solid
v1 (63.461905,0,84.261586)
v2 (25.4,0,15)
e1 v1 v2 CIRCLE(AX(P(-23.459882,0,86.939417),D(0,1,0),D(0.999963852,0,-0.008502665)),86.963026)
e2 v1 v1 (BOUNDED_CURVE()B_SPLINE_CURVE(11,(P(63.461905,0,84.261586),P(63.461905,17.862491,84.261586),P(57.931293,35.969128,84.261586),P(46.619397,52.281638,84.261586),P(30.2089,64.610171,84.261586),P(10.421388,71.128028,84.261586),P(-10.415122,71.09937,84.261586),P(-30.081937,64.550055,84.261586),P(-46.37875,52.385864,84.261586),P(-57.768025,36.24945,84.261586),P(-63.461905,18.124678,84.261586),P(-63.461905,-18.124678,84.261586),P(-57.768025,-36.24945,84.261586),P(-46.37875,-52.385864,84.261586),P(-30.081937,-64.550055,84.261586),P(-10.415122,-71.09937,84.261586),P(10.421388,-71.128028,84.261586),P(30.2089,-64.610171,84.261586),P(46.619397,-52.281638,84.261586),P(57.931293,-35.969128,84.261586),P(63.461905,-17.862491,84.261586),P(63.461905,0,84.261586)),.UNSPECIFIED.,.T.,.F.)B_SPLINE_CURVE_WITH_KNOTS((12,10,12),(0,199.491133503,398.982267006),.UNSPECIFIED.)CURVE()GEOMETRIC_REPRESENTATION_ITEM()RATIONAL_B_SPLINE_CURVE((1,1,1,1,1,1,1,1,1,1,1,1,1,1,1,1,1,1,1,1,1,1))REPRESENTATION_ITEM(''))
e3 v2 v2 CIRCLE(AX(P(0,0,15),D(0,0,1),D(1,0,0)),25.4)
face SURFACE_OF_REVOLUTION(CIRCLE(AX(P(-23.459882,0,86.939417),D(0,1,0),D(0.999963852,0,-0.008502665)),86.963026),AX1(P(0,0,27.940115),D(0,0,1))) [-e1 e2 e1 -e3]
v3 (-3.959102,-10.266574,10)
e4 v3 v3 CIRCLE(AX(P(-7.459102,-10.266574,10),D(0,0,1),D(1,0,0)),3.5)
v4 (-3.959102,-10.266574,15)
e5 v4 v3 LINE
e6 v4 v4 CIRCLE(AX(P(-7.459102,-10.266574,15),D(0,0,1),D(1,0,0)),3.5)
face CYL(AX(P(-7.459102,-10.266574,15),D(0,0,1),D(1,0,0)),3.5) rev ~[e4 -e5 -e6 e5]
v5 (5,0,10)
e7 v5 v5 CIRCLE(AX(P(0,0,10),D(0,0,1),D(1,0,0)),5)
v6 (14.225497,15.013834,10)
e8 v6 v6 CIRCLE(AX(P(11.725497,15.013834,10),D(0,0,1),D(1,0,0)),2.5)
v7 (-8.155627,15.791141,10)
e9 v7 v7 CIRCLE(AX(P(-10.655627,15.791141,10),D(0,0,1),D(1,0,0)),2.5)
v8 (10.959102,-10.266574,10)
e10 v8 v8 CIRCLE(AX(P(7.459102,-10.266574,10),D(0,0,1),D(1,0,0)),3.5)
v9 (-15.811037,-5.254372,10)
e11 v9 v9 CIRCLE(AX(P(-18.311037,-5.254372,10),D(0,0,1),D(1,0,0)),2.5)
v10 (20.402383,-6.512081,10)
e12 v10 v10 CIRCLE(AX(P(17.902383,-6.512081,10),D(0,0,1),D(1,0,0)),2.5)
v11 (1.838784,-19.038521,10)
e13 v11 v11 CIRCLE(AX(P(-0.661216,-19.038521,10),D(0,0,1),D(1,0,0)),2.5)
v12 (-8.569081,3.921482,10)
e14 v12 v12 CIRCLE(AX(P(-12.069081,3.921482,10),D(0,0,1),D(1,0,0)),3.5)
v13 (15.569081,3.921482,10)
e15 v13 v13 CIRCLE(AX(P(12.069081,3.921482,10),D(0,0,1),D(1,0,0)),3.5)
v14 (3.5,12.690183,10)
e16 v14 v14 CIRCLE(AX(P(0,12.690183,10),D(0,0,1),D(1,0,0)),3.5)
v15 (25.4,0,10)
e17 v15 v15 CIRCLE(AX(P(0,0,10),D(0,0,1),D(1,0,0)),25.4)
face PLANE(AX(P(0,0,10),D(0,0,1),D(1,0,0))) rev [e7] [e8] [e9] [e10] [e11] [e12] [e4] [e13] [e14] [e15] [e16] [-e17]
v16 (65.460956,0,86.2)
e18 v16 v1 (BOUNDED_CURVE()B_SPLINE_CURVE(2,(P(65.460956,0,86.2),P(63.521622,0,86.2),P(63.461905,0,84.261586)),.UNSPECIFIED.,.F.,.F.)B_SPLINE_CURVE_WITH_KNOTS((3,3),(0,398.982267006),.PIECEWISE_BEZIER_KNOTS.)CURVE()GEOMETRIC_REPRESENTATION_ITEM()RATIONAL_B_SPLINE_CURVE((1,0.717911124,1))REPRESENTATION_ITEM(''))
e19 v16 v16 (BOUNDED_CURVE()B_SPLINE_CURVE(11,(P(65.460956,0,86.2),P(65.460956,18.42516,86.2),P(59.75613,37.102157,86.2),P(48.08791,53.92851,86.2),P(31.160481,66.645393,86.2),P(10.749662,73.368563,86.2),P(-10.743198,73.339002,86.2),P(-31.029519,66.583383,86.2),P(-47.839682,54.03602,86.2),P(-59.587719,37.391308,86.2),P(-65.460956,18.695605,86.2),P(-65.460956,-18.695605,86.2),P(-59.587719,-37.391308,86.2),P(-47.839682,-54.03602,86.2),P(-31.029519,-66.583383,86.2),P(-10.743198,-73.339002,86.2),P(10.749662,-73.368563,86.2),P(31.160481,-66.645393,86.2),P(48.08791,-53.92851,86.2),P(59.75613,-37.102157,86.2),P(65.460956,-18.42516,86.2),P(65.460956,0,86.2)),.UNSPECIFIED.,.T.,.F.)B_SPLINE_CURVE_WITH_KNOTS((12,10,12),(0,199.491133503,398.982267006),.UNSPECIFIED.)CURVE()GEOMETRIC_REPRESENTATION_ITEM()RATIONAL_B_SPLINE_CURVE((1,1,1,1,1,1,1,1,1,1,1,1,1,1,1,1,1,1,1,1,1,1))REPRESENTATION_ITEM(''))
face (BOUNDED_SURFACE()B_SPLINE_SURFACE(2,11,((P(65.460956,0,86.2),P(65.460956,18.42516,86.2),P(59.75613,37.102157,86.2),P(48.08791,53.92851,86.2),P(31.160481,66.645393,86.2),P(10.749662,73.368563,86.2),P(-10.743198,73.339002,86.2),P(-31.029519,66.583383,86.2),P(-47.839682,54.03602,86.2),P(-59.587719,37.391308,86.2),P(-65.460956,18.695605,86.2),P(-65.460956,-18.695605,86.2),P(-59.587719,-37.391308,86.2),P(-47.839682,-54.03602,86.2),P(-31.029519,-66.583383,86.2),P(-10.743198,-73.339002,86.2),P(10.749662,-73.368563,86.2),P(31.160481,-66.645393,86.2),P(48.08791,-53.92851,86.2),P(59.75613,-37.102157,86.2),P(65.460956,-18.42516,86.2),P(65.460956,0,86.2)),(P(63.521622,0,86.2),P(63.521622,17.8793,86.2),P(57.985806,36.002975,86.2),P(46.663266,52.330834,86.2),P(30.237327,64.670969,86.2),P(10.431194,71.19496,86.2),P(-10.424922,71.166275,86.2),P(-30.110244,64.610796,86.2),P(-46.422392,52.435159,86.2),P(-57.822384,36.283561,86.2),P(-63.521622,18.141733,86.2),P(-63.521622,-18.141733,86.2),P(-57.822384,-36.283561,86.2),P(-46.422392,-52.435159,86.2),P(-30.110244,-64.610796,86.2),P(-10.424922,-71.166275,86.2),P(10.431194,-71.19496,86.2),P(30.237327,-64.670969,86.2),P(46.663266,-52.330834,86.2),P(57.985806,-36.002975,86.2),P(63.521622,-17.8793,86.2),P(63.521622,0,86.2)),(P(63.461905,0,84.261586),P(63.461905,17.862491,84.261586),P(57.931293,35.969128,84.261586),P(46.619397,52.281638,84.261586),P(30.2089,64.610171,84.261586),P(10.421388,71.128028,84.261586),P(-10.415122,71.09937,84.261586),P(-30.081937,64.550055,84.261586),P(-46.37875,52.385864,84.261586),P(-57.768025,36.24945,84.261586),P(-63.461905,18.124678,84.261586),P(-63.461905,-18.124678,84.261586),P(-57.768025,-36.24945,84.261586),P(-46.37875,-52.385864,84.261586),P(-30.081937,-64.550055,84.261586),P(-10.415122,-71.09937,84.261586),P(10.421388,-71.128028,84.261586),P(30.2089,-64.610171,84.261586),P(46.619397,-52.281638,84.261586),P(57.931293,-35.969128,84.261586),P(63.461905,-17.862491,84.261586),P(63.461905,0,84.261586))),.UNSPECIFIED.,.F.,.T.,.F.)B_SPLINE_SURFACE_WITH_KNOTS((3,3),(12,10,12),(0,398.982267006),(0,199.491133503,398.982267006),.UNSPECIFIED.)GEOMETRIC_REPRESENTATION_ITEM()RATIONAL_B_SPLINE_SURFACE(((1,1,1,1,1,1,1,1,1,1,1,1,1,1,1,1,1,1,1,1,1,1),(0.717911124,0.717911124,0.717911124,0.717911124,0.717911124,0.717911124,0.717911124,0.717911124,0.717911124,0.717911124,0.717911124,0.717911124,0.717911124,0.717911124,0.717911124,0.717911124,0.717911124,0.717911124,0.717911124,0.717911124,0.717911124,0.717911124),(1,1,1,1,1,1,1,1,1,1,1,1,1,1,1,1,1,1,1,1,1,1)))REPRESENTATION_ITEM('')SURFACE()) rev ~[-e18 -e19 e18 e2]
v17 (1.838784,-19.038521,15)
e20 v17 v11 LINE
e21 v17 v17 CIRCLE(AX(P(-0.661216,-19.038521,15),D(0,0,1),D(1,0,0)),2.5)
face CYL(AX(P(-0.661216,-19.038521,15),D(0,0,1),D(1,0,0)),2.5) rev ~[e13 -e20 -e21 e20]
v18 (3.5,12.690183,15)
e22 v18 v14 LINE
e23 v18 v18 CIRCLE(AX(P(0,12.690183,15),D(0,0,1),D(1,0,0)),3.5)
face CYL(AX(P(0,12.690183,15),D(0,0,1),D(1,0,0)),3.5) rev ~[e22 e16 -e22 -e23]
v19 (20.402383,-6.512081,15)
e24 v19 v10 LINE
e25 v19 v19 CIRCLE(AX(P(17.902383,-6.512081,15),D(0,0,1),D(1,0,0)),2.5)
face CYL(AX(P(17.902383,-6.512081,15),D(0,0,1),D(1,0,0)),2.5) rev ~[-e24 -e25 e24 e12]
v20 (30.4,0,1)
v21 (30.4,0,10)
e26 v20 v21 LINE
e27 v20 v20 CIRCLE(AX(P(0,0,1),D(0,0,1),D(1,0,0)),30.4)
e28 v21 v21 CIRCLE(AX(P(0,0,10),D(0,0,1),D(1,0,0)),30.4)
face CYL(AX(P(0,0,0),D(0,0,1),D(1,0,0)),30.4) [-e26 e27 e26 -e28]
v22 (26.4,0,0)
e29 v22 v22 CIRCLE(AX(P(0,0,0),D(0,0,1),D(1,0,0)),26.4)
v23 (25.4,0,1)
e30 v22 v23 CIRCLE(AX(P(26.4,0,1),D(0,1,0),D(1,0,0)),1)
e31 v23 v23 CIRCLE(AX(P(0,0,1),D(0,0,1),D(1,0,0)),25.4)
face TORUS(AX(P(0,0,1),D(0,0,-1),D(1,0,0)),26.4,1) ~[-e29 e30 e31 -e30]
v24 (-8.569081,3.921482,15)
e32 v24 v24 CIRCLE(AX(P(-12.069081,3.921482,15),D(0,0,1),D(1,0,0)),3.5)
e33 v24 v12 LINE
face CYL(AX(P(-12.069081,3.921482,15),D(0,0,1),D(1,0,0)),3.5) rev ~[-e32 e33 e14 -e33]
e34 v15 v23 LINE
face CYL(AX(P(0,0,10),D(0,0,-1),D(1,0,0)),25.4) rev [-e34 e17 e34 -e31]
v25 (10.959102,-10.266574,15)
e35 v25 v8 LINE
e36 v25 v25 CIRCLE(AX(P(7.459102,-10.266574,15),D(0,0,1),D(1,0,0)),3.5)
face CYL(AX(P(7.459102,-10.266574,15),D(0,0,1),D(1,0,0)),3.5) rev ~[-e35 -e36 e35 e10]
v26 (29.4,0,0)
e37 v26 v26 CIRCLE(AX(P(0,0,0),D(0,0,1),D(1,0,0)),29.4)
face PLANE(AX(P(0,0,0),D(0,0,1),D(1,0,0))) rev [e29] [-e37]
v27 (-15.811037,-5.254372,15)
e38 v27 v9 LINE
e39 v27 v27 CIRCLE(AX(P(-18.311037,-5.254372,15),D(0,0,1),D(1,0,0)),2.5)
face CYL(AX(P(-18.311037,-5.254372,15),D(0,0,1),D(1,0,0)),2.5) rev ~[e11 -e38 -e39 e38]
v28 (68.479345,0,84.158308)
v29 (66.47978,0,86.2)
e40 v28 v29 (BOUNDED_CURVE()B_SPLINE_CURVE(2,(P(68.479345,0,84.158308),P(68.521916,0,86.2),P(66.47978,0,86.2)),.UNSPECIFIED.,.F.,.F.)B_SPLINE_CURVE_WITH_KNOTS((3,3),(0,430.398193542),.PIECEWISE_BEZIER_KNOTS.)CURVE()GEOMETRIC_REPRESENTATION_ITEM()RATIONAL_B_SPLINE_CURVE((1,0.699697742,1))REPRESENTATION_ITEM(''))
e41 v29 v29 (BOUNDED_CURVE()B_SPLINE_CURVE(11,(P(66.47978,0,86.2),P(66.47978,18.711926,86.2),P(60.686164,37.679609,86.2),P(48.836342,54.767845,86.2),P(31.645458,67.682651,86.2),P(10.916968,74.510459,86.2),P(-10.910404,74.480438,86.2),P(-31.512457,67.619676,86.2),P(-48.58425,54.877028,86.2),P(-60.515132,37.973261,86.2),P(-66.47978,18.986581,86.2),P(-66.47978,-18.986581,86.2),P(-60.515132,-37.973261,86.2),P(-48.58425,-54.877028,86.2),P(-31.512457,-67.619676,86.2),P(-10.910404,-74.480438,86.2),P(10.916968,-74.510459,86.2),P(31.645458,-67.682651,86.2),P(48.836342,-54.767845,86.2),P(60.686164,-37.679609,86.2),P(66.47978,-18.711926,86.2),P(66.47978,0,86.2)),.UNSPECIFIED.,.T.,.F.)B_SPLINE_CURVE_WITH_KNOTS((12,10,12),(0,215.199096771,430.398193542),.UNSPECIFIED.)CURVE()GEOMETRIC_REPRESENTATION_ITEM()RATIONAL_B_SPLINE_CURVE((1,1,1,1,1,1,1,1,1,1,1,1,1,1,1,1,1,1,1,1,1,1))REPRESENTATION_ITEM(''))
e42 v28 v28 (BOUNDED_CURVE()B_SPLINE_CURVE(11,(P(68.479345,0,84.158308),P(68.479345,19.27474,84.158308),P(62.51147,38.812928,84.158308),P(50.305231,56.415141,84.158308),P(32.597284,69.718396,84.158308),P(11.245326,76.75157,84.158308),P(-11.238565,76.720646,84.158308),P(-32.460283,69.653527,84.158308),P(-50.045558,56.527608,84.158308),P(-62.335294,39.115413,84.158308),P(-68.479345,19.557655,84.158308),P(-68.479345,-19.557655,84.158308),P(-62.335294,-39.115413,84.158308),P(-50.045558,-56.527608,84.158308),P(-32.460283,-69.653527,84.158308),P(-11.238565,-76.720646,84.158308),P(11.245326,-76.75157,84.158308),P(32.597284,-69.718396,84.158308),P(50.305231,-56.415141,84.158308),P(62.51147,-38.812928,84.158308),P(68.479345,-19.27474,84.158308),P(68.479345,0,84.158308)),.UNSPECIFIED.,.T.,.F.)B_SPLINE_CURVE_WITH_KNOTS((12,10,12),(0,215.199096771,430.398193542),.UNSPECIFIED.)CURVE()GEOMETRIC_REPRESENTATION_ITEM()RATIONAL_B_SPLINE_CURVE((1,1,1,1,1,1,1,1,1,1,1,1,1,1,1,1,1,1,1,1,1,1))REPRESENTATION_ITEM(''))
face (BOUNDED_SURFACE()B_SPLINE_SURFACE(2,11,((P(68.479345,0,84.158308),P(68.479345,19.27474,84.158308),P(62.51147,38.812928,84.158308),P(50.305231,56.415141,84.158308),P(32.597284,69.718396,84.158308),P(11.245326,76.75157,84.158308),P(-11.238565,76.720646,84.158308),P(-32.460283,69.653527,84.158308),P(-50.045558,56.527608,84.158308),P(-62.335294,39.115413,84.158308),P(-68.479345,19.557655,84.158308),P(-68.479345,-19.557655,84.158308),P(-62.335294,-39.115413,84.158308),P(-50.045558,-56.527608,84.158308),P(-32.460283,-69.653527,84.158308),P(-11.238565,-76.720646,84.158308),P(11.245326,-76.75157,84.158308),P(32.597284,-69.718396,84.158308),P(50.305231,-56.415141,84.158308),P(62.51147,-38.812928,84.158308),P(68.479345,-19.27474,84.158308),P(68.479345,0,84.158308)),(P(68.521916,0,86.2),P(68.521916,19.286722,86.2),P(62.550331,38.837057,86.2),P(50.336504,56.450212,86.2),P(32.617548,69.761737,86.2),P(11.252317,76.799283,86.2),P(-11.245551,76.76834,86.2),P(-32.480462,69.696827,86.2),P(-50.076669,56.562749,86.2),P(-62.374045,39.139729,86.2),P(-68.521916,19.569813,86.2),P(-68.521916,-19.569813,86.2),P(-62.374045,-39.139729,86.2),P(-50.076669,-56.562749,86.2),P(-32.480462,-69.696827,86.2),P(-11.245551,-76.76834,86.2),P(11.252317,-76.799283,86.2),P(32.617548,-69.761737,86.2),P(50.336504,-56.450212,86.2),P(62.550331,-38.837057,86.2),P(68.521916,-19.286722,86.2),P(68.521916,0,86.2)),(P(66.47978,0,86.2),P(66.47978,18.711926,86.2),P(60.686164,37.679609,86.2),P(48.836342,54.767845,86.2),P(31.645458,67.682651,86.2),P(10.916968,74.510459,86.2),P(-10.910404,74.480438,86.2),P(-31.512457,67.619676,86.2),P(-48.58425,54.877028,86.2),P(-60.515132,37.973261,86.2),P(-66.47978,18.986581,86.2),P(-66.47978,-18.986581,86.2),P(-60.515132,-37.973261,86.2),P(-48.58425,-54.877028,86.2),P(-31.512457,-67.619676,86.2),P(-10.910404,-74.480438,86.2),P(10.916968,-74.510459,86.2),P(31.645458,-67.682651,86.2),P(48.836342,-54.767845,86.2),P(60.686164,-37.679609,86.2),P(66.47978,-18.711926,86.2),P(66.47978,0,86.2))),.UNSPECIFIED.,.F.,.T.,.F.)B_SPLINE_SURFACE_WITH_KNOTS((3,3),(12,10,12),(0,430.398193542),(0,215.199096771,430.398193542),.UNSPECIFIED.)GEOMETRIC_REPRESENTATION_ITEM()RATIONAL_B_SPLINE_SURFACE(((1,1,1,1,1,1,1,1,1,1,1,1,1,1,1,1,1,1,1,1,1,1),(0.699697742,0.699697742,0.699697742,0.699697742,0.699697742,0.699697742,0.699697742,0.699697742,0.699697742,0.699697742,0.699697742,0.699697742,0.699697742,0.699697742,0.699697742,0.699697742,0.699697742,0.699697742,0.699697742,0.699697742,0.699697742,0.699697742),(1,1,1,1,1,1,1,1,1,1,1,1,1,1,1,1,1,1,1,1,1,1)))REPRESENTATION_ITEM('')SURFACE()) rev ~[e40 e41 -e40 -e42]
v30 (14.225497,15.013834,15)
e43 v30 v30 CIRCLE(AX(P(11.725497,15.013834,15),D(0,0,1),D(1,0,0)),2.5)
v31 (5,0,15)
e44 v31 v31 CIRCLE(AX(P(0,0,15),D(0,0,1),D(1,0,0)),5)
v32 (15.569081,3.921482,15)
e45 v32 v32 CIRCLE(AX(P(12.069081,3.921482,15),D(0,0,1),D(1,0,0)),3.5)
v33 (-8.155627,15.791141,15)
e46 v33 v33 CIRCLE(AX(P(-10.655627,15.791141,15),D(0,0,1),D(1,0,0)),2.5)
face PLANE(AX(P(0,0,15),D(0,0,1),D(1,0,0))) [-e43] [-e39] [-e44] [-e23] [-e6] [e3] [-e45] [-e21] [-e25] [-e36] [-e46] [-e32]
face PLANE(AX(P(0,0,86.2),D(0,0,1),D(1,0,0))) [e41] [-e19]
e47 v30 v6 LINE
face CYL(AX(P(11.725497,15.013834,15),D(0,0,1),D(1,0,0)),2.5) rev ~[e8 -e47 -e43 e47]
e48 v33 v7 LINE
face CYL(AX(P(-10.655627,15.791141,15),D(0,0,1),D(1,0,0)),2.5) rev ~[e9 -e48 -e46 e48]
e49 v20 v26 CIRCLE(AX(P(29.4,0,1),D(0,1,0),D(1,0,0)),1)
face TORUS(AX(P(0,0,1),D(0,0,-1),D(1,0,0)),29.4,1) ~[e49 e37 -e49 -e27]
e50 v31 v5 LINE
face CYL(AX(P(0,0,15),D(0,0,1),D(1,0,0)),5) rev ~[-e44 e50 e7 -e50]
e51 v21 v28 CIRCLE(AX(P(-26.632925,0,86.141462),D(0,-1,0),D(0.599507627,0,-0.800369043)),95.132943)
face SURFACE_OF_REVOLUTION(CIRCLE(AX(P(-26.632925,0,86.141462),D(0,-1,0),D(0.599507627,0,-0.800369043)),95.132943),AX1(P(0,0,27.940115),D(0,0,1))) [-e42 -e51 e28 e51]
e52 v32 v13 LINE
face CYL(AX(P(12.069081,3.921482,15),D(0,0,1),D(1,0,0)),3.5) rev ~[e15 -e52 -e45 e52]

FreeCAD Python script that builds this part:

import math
import FreeCAD as App
import Part
import Sketcher
from FreeCAD import Vector


def edges_at(feature, points):
    """Names of the edges that pass closest to the given points."""
    edges = feature.Shape.Edges
    near = lambda p: min(range(len(edges)), key=lambda i: edges[i].distToShape(Part.Vertex(*p))[0])
    return sorted({f"Edge{near(p) + 1}" for p in points})

doc = App.newDocument("Part")
params = doc.addObject("Spreadsheet::Sheet", "Params")
for row, (alias, value) in enumerate([
    ("sketch1_width", "5 mm"),
    ("sketch1_height", "10 mm"),
    ("sketch1_width2", "25.4 mm"),
    ("revolution_angle", "360 deg"),
    ("fillet_radius", "2 mm"),
    ("fillet2_radius", "1 mm"),
    ("sketch2_diameter", "10 mm"),
    ("sketch2_diameter2", "7 mm"),
    ("sketch2_diameter3", "5 mm"),
], start=1):
    params.set(f"A{row}", alias)
    params.set(f"B{row}", "=" + value)
    params.setAlias(f"B{row}", alias)

body = doc.addObject("PartDesign::Body", "Body")

sketch1 = body.newObject("Sketcher::SketchObject", "Sketch")
sketch1.AttachmentSupport = (doc.getObject("XZ_Plane"), [""])
sketch1.MapMode = "FlatFace"
sketch1.addGeometry([
    Part.LineSegment(Vector(0, 15, 0), Vector(0, 10, 0)),
    Part.LineSegment(Vector(0, 10, 0), Vector(25, 10, 0)),
    Part.LineSegment(Vector(25, 10, 0), Vector(25, 0, 0)),
    Part.LineSegment(Vector(25, 0, 0), Vector(30, 0, 0)),
    Part.LineSegment(Vector(30, 0, 0), Vector(30, 10, 0)),
    Part.ArcOfCircle(Part.Circle(Vector(-27, 86, 0), Vector(0, 0, 1), 95), math.radians(-53), math.radians(0)),
    Part.LineSegment(Vector(68, 86, 0), Vector(64, 86, 0)),
    Part.ArcOfCircle(Part.Circle(Vector(-23, 87, 0), Vector(0, 0, 1), 87), math.radians(-56), math.radians(0)),
    Part.LineSegment(Vector(25, 15, 0), Vector(0, 15, 0)),
], False)
sketch1.addConstraint([
    Sketcher.Constraint("Coincident", 0, 2, 1, 1),
    Sketcher.Constraint("Coincident", 1, 2, 2, 1),
    Sketcher.Constraint("Coincident", 2, 2, 3, 1),
    Sketcher.Constraint("Coincident", 3, 2, 4, 1),
    Sketcher.Constraint("Coincident", 4, 2, 5, 1),
    Sketcher.Constraint("Coincident", 5, 2, 6, 1),
    Sketcher.Constraint("Coincident", 6, 2, 7, 2),
    Sketcher.Constraint("Coincident", 7, 1, 8, 1),
    Sketcher.Constraint("Coincident", 8, 2, 0, 1),
    Sketcher.Constraint("Vertical", 0),
    Sketcher.Constraint("Horizontal", 1),
    Sketcher.Constraint("Vertical", 2),
    Sketcher.Constraint("Horizontal", 3),
    Sketcher.Constraint("Vertical", 4),
    Sketcher.Constraint("Horizontal", 6),
    Sketcher.Constraint("Horizontal", 8),
    Sketcher.Constraint("PointOnObject", 0, 2, -2),
    Sketcher.Constraint("PointOnObject", 2, 2, -1),
    Sketcher.Constraint("Horizontal", 1, 2, 4, 2),
    Sketcher.Constraint("Vertical", 2, 2, 7, 1),
    Sketcher.Constraint("Equal", 3, 6),
    Sketcher.Constraint("Equal", 6, 0),
    Sketcher.Constraint("DistanceX", 3, 1, 3, 2, 5.0),
    Sketcher.Constraint("DistanceY", 2, 2, 2, 1, 10.0),
    Sketcher.Constraint("DistanceX", 1, 1, 1, 2, 25.4),
    Sketcher.Constraint("DistanceX", -1, 1, 5, 2, 68.5),
    Sketcher.Constraint("DistanceY", -1, 1, 5, 2, 86.2),
    Sketcher.Constraint("Radius", 5, 95.132943),
    Sketcher.Constraint("Radius", 7, 86.963026),
])
sketch1.setExpression("Constraints[22]", "Params.sketch1_width")
sketch1.setExpression("Constraints[23]", "Params.sketch1_height")
sketch1.setExpression("Constraints[24]", "Params.sketch1_width2")
revolution = body.newObject("PartDesign::Revolution", "Revolution")
revolution.Profile = sketch1
revolution.ReferenceAxis = (sketch1, ["V_Axis"])
revolution.setExpression("Angle", "Params.revolution_angle")
doc.recompute()

fillet = body.newObject("PartDesign::Fillet", "Fillet")
fillet.Base = (revolution, edges_at(revolution, [(-68.5, 0, 86.2), (-63.5, 0, 86.2)]))
fillet.setExpression("Radius", "Params.fillet_radius")
doc.recompute()

fillet2 = body.newObject("PartDesign::Fillet", "Fillet001")
fillet2.Base = (fillet, edges_at(fillet, [(-25.4, 0, 0), (-30.4, 0, 0)]))
fillet2.setExpression("Radius", "Params.fillet2_radius")

sketch2 = body.newObject("Sketcher::SketchObject", "Sketch001")
sketch2.AttachmentSupport = (doc.getObject("XY_Plane"), [""])
sketch2.MapMode = "FlatFace"
sketch2.AttachmentOffset = App.Placement(Vector(0, 0, 15), App.Rotation())
sketch2.addGeometry([
    Part.Circle(Vector(0, 0, 0), Vector(0, 0, 1), 5),
    Part.Circle(Vector(0, 12.7, 0), Vector(0, 0, 1), 3.5),
    Part.Circle(Vector(-12.1, 3.9, 0), Vector(0, 0, 1), 3.5),
    Part.Circle(Vector(-7.5, -10.3, 0), Vector(0, 0, 1), 3.5),
    Part.Circle(Vector(7.5, -10.3, 0), Vector(0, 0, 1), 3.5),
    Part.Circle(Vector(12.1, 3.9, 0), Vector(0, 0, 1), 3.5),
    Part.Circle(Vector(-10.7, 15.8, 0), Vector(0, 0, 1), 2.5),
    Part.Circle(Vector(-18.3, -5.3, 0), Vector(0, 0, 1), 2.5),
    Part.Circle(Vector(-0.7, -19, 0), Vector(0, 0, 1), 2.5),
    Part.Circle(Vector(17.9, -6.5, 0), Vector(0, 0, 1), 2.5),
    Part.Circle(Vector(11.7, 15, 0), Vector(0, 0, 1), 2.5),
], False)
sketch2.addConstraint([
    Sketcher.Constraint("Coincident", 0, 3, -1, 1),
    Sketcher.Constraint("Equal", 1, 2),
    Sketcher.Constraint("Equal", 2, 3),
    Sketcher.Constraint("Equal", 3, 4),
    Sketcher.Constraint("Equal", 4, 5),
    Sketcher.Constraint("Equal", 6, 7),
    Sketcher.Constraint("Equal", 7, 8),
    Sketcher.Constraint("Equal", 8, 9),
    Sketcher.Constraint("Equal", 9, 10),
    Sketcher.Constraint("Symmetric", 3, 3, 4, 3, -2),
    Sketcher.Constraint("Symmetric", 2, 3, 5, 3, -2),
    Sketcher.Constraint("PointOnObject", 1, 3, -2),
    Sketcher.Constraint("Diameter", 0, 10.0),
    Sketcher.Constraint("Diameter", 1, 7.0),
    Sketcher.Constraint("Diameter", 6, 5.0),
    Sketcher.Constraint("DistanceX", 3, 3, -1, 1, 7.459102),
    Sketcher.Constraint("DistanceY", 2, 3, 1, 3, 8.768701),
    Sketcher.Constraint("DistanceX", 5, 3, 9, 3, 5.833302),
    Sketcher.Constraint("DistanceX", 8, 3, 9, 3, 18.563599),
    Sketcher.Constraint("DistanceX", 2, 3, -1, 1, 12.069081),
    Sketcher.Constraint("DistanceY", -1, 1, 6, 3, 15.791141),
    Sketcher.Constraint("DistanceY", 8, 3, -1, 1, 19.038521),
    Sketcher.Constraint("DistanceY", 9, 3, -1, 1, 6.512081),
    Sketcher.Constraint("DistanceY", 1, 3, 6, 3, 3.100958),
    Sketcher.Constraint("DistanceX", 7, 3, 6, 3, 7.65541),
    Sketcher.Constraint("DistanceX", 7, 3, 8, 3, 17.649821),
    Sketcher.Constraint("DistanceY", 8, 3, 7, 3, 13.784149),
    Sketcher.Constraint("DistanceY", 5, 3, 10, 3, 11.092352),
    Sketcher.Constraint("DistanceY", 3, 3, -1, 1, 10.266574),
    Sketcher.Constraint("DistanceX", -1, 1, 10, 3, 11.725497),
])
sketch2.setExpression("Constraints[12]", "Params.sketch2_diameter")
sketch2.setExpression("Constraints[13]", "Params.sketch2_diameter2")
sketch2.setExpression("Constraints[14]", "Params.sketch2_diameter3")
pocket1 = body.newObject("PartDesign::Pocket", "Pocket")
pocket1.Profile = sketch2
pocket1.Type = "ThroughAll"

doc.recompute()
